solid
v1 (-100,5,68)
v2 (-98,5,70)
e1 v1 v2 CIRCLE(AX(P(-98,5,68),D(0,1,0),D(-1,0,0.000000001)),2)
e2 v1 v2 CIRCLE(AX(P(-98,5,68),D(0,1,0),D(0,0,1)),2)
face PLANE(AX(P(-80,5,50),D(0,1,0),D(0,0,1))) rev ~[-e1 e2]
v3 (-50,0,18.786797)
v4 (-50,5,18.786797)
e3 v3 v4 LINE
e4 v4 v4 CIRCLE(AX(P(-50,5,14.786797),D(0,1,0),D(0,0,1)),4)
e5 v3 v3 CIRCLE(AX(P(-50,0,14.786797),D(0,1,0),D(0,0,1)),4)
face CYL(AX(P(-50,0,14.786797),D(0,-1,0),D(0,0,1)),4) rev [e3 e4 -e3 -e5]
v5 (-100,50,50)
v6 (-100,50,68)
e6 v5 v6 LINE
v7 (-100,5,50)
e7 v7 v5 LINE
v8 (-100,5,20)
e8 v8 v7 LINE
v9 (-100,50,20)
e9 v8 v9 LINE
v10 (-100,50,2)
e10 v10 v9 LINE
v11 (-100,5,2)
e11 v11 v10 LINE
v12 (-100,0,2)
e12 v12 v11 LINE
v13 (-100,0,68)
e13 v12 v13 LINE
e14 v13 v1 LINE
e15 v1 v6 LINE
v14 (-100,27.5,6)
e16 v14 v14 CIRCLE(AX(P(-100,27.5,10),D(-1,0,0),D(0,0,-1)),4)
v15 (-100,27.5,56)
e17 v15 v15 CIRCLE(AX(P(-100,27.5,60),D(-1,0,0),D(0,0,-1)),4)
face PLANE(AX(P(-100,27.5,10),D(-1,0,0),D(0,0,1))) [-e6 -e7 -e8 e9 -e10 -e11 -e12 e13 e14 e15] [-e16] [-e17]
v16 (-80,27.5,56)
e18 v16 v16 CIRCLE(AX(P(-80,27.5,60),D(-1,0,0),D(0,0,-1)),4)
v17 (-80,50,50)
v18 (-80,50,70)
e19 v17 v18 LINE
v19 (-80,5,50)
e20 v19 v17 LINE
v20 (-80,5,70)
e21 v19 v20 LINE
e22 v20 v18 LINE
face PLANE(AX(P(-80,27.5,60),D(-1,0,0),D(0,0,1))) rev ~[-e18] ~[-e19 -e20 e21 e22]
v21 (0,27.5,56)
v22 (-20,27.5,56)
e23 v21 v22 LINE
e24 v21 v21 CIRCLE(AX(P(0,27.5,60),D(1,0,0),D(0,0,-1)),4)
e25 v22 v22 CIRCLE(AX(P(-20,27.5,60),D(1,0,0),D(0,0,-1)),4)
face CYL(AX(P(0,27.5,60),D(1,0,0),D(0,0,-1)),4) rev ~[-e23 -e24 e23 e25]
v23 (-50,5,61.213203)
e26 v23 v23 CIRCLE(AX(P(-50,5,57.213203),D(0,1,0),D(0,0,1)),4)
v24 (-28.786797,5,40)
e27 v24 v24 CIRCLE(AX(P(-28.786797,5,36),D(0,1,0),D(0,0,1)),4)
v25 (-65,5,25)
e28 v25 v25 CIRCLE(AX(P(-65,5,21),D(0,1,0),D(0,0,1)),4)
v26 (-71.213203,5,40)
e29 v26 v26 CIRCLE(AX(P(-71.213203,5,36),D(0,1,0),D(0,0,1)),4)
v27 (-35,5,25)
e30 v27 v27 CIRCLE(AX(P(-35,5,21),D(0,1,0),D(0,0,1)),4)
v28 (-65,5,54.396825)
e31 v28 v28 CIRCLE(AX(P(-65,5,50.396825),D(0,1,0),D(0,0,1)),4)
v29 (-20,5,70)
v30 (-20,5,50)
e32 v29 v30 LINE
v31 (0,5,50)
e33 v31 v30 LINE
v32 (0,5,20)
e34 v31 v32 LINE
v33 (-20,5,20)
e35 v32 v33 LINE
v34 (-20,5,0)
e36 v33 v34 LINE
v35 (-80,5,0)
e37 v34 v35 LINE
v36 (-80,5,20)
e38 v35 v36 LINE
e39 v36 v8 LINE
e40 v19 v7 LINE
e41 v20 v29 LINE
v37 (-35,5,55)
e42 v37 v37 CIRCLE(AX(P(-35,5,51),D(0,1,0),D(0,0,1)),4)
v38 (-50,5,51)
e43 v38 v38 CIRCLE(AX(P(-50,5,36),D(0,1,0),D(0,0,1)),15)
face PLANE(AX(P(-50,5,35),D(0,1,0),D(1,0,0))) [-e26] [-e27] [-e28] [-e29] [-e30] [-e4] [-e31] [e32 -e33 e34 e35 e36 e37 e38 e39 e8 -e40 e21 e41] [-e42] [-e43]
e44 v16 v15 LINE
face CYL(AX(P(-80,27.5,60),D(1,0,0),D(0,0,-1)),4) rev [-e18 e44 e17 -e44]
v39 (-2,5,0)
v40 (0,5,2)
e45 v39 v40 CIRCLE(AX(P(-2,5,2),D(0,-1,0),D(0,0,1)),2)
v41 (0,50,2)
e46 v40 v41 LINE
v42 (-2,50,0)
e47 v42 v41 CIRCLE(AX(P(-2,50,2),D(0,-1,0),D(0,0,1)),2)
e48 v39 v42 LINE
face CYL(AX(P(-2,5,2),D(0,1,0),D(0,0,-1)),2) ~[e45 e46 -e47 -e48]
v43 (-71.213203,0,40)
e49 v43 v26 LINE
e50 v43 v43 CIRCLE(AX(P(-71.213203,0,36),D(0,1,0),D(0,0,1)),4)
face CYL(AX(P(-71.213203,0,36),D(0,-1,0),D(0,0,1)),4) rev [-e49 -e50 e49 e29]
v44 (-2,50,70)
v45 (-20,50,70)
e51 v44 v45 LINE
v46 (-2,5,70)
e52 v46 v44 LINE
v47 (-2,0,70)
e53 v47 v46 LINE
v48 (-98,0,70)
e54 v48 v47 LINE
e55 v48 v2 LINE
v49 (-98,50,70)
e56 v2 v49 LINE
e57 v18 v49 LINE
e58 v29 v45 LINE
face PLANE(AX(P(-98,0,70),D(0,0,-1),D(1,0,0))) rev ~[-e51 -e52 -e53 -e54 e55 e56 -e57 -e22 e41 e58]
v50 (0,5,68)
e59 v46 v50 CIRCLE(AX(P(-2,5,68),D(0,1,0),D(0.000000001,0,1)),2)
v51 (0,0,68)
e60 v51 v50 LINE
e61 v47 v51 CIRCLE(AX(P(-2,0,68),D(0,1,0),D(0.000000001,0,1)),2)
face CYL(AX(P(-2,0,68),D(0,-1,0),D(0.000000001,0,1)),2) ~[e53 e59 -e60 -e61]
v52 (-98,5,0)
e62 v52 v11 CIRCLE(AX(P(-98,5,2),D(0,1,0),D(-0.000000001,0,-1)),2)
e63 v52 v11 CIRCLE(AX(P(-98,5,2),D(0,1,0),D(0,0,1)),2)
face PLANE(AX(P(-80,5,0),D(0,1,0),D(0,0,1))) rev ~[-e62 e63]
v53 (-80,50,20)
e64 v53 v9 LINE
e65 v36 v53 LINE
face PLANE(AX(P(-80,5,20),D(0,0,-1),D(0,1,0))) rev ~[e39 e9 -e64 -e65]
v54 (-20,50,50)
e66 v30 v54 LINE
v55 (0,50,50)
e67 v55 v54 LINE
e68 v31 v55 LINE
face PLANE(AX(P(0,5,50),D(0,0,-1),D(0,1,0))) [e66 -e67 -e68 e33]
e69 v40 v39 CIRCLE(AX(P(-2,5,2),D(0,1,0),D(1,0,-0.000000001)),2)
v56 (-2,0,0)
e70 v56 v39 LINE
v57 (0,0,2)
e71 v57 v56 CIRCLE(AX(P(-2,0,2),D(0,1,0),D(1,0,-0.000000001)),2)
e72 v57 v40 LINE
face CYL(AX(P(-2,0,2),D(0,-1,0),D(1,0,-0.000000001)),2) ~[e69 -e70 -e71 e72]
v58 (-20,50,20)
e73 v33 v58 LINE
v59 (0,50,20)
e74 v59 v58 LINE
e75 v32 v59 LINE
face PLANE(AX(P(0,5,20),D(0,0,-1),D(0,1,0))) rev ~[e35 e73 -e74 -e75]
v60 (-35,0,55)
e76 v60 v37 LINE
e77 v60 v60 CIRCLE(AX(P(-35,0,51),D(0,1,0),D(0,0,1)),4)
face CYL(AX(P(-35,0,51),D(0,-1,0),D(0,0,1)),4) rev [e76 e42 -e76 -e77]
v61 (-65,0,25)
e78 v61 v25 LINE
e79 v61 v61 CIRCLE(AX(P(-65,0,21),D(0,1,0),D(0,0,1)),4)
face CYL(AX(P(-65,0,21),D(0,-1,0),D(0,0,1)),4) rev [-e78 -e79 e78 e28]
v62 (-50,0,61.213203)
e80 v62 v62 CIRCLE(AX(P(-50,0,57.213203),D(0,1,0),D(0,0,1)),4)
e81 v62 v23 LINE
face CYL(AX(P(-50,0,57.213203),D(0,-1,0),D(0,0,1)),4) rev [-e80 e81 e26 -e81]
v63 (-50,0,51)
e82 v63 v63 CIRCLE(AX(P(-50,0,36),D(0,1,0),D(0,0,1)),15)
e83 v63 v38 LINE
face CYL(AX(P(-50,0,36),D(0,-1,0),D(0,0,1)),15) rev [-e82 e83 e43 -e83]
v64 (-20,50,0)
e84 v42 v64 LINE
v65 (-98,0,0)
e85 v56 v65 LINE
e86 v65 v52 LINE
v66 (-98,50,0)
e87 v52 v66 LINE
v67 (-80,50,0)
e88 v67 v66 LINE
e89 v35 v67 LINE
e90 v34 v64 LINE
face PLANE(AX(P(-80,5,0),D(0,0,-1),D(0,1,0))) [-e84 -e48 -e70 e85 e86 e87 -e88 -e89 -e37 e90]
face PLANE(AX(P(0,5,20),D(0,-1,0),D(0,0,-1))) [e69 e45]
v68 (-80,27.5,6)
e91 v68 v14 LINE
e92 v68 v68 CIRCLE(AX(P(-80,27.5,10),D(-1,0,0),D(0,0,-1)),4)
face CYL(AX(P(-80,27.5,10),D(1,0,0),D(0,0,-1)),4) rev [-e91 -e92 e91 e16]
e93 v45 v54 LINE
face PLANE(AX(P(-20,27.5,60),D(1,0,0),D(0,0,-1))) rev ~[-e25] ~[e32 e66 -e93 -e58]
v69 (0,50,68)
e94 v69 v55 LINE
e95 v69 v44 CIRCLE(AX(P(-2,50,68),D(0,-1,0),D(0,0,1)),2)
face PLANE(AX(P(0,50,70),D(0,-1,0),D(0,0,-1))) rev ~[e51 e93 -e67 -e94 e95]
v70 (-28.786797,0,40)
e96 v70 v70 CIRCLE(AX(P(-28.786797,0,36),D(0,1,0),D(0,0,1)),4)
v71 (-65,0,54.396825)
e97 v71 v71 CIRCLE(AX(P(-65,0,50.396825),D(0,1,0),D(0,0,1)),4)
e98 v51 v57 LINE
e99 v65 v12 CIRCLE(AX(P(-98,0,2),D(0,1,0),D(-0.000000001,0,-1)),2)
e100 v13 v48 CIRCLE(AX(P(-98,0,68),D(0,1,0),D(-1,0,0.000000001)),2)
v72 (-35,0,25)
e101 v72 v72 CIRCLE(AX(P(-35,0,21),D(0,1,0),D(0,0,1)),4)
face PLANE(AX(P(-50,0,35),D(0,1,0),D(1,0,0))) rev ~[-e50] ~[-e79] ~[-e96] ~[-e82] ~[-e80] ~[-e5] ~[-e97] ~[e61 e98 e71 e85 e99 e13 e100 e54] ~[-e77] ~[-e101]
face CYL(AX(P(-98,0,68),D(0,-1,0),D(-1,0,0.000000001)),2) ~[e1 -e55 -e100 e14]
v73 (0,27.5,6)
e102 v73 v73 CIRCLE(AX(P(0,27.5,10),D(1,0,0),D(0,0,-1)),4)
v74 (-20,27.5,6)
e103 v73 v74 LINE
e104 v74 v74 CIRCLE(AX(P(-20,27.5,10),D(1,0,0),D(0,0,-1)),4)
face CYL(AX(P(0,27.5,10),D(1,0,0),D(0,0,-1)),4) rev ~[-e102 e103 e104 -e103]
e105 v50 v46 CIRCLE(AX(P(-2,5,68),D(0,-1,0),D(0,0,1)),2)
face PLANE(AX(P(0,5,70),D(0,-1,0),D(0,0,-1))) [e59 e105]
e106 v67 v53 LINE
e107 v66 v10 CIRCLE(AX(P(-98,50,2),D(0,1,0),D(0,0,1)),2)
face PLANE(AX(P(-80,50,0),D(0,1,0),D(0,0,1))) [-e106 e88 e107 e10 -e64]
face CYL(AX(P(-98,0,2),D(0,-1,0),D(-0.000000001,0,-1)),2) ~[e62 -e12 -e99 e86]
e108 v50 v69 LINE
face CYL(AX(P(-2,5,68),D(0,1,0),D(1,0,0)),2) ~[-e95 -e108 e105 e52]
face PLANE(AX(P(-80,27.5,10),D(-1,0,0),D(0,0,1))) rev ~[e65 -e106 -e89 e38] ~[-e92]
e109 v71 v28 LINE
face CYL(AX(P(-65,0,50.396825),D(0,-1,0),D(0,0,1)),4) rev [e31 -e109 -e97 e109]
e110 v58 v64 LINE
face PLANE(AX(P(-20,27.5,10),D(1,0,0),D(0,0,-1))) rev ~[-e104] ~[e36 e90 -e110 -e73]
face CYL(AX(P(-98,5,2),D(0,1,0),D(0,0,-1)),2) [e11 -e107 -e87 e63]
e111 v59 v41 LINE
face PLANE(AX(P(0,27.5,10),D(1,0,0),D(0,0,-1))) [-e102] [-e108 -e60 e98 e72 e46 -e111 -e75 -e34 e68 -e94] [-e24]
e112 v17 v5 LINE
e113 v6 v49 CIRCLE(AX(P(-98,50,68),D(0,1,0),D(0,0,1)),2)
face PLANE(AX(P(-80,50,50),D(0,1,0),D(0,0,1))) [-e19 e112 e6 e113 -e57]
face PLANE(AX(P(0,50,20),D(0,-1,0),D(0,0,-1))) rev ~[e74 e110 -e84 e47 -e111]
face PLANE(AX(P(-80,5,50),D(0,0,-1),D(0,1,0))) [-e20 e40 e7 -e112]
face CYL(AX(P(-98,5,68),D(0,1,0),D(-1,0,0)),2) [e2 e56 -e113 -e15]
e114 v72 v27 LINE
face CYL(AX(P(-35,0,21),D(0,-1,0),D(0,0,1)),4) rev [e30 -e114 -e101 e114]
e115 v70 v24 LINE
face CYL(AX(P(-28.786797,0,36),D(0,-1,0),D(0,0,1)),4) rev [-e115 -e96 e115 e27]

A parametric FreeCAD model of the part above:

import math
import FreeCAD as App
import Part
import Sketcher

V = App.Vector


def edges_at(feature, points):
    """Names of the edges that pass closest to the given points."""
    edges = feature.Shape.Edges
    near = lambda p: min(range(len(edges)), key=lambda i: edges[i].distToShape(Part.Vertex(*p))[0])
    return sorted({f"Edge{near(p) + 1}" for p in points})


def add_polygon(sketch, points):
    """Adds a closed chain of lines whose ends are joined by coincident constraints."""
    first, n = sketch.GeometryCount, len(points)
    for a, b in zip(points, points[1:] + points[:1]):
        sketch.addGeometry(Part.LineSegment(App.Vector(*a, 0), App.Vector(*b, 0)), False)
    for i in range(n):
        sketch.addConstraint(Sketcher.Constraint("Coincident", first + i, 2, first + (i + 1) % n, 1))

doc = App.newDocument("Part")
body = doc.addObject("PartDesign::Body", "Body")

# Sketch on XZ plane
sketch1 = body.newObject("Sketcher::SketchObject", "Sketch")
sketch1.AttachmentSupport = (doc.getObject("XZ_Plane"), [""])
sketch1.MapMode = "FlatFace"
sketch1.addGeometry([
    Part.LineSegment(V(-2, 0, 0), V(-98, 0, 0)),  # 0
    Part.ArcOfCircle(Part.Circle(V(-98, 2, 0), V(0, 0, 1), 2), math.radians(-180), math.radians(-90)),  # 1
    Part.LineSegment(V(-100, 2, 0), V(-100, 68, 0)),  # 2
    Part.ArcOfCircle(Part.Circle(V(-98, 68, 0), V(0, 0, 1), 2), math.radians(90), math.radians(180)),  # 3
    Part.LineSegment(V(-98, 70, 0), V(-2, 70, 0)),  # 4
    Part.ArcOfCircle(Part.Circle(V(-2, 68, 0), V(0, 0, 1), 2), math.radians(0), math.radians(90)),  # 5
    Part.LineSegment(V(0, 68, 0), V(0, 2, 0)),  # 6
    Part.ArcOfCircle(Part.Circle(V(-2, 2, 0), V(0, 0, 1), 2), math.radians(-90), math.radians(0)),  # 7
    Part.Circle(V(-65, 50.4, 0), V(0, 0, 1), 4),  # 8
    Part.Circle(V(-50, 57.2, 0), V(0, 0, 1), 4),  # 9
    Part.Circle(V(-35, 51, 0), V(0, 0, 1), 4),  # 10
    Part.Circle(V(-71.2, 36, 0), V(0, 0, 1), 4),  # 11
    Part.Circle(V(-65, 21, 0), V(0, 0, 1), 4),  # 12
    Part.Circle(V(-50, 36, 0), V(0, 0, 1), 15),  # 13
    Part.Circle(V(-28.8, 36, 0), V(0, 0, 1), 4),  # 14
    Part.Circle(V(-50, 14.8, 0), V(0, 0, 1), 4),  # 15
    Part.Circle(V(-35, 21, 0), V(0, 0, 1), 4),  # 16
], False)
sketch1.addConstraint([
    Sketcher.Constraint("Tangent", 0, 2, 1, 2),
    Sketcher.Constraint("Tangent", 1, 1, 2, 1),
    Sketcher.Constraint("Tangent", 2, 2, 3, 2),
    Sketcher.Constraint("Tangent", 3, 1, 4, 1),
    Sketcher.Constraint("Tangent", 4, 2, 5, 2),
    Sketcher.Constraint("Tangent", 5, 1, 6, 1),
    Sketcher.Constraint("Tangent", 6, 2, 7, 2),
    Sketcher.Constraint("Tangent", 7, 1, 0, 1),
    Sketcher.Constraint("Horizontal", 0),
    Sketcher.Constraint("Vertical", 2),
    Sketcher.Constraint("Horizontal", 4),
    Sketcher.Constraint("Vertical", 6),
    Sketcher.Constraint("Equal", 1, 3),
    Sketcher.Constraint("Equal", 3, 5),
    Sketcher.Constraint("Equal", 5, 7),
    Sketcher.Constraint("Equal", 8, 9),
    Sketcher.Constraint("Equal", 9, 10),
    Sketcher.Constraint("Equal", 10, 11),
    Sketcher.Constraint("Equal", 11, 12),
    Sketcher.Constraint("Equal", 12, 14),
    Sketcher.Constraint("Equal", 14, 15),
    Sketcher.Constraint("Equal", 15, 16),
    Sketcher.Constraint("PointOnObject", 0, 2, -1),
    Sketcher.Constraint("PointOnObject", 5, 1, -2),
    Sketcher.Constraint("Horizontal", 11, 3, 13, 3),
    Sketcher.Constraint("Horizontal", 13, 3, 14, 3),
    Sketcher.Constraint("Horizontal", 12, 3, 16, 3),
    Sketcher.Constraint("Vertical", 8, 3, 12, 3),
    Sketcher.Constraint("Vertical", 9, 3, 13, 3),
    Sketcher.Constraint("Vertical", 13, 3, 15, 3),
    Sketcher.Constraint("Vertical", 10, 3, 16, 3),
    Sketcher.Constraint("Diameter", 8, 8.0),
    Sketcher.Constraint("Diameter", 13, 30.0),
    Sketcher.Constraint("Radius", 1, 2.0),
    Sketcher.Constraint("DistanceX", 0, 2, 0, 1, 96.0),
    Sketcher.Constraint("DistanceY", 2, 1, 2, 2, 66.0),
    Sketcher.Constraint("DistanceX", 8, 3, -1, 1, 65.0),
    Sketcher.Constraint("DistanceX", 9, 3, -1, 1, 50.0),
    Sketcher.Constraint("DistanceX", 10, 3, -1, 1, 35.0),
    Sketcher.Constraint("DistanceY", -1, 1, 10, 3, 51.0),
    Sketcher.Constraint("DistanceY", -1, 1, 11, 3, 36.0),
    Sketcher.Constraint("DistanceY", -1, 1, 12, 3, 21.0),
    Sketcher.Constraint("DistanceY", 8, 3, 9, 3, 6.816378),
    Sketcher.Constraint("DistanceY", 15, 3, 8, 3, 35.610029),
    Sketcher.Constraint("DistanceY", -1, 1, 8, 3, 50.396825),
    Sketcher.Constraint("DistanceX", 11, 3, -1, 1, 71.213203),
    Sketcher.Constraint("DistanceX", 14, 3, -1, 1, 28.786797),
])
pad1 = body.newObject("PartDesign::Pad", "Pad")
pad1.Profile = sketch1
pad1.Length = 5
pad1.Reversed = True

# Sketch on YZ plane
sketch2 = body.newObject("Sketcher::SketchObject", "Sketch001")
sketch2.AttachmentSupport = (doc.getObject("YZ_Plane"), [""])
sketch2.MapMode = "FlatFace"
add_polygon(sketch2, [(50, 20), (5, 20), (5, 0), (50, 0)])  # lines 0-3
sketch2.addGeometry(Part.Circle(V(27.5, 10, 0), V(0, 0, 1), 4), False)  # 4
add_polygon(sketch2, [(50, 70), (5, 70), (5, 50), (50, 50)])  # lines 5-8
sketch2.addGeometry(Part.Circle(V(27.5, 60, 0), V(0, 0, 1), 4), False)  # 9
sketch2.addConstraint([
    Sketcher.Constraint("Horizontal", 0),
    Sketcher.Constraint("Vertical", 1),
    Sketcher.Constraint("Horizontal", 2),
    Sketcher.Constraint("Vertical", 3),
    Sketcher.Constraint("Horizontal", 5),
    Sketcher.Constraint("Vertical", 6),
    Sketcher.Constraint("Horizontal", 7),
    Sketcher.Constraint("Vertical", 8),
    Sketcher.Constraint("Equal", 4, 9),
    Sketcher.Constraint("PointOnObject", 1, 2, -1),
    Sketcher.Constraint("Vertical", 4, 3, 9, 3),
    Sketcher.Constraint("Vertical", 1, 2, 5, 2),
    Sketcher.Constraint("Vertical", 3, 2, 7, 2),
    Sketcher.Constraint("Equal", 3, 6),
    Sketcher.Constraint("Diameter", 4, 8.0),
    Sketcher.Constraint("DistanceX", 0, 2, 0, 1, 45.0),
    Sketcher.Constraint("DistanceY", 1, 2, 1, 1, 20.0),
    Sketcher.Constraint("DistanceY", -1, 1, 4, 3, 10.0),
    Sketcher.Constraint("DistanceY", -1, 1, 9, 3, 60.0),
    Sketcher.Constraint("DistanceX", -1, 1, 0, 2, 5.0),
    Sketcher.Constraint("DistanceY", -1, 1, 5, 2, 70.0),
    Sketcher.Constraint("DistanceX", -1, 1, 4, 3, 27.5),
])
pad2 = body.newObject("PartDesign::Pad", "Pad001")
pad2.Profile = sketch2
pad2.Length = 20
pad2.Reversed = True

# Sketch on YZ plane
sketch3 = body.newObject("Sketcher::SketchObject", "Sketch002")
sketch3.AttachmentSupport = (doc.getObject("YZ_Plane"), [""])
sketch3.MapMode = "FlatFace"
sketch3.AttachmentOffset = App.Placement(V(0, 0, -80), App.Rotation())
add_polygon(sketch3, [(50, 0), (5, 0), (5, 20), (50, 20)])  # lines 0-3
sketch3.addGeometry(Part.Circle(V(27.5, 10, 0), V(0, 0, 1), 4), False)  # 4
add_polygon(sketch3, [(50, 50), (5, 50), (5, 70), (50, 70)])  # lines 5-8
sketch3.addGeometry(Part.Circle(V(27.5, 60, 0), V(0, 0, 1), 4), False)  # 9
sketch3.addConstraint([
    Sketcher.Constraint("Horizontal", 0),
    Sketcher.Constraint("Vertical", 1),
    Sketcher.Constraint("Horizontal", 2),
    Sketcher.Constraint("Vertical", 3),
    Sketcher.Constraint("Horizontal", 5),
    Sketcher.Constraint("Vertical", 6),
    Sketcher.Constraint("Horizontal", 7),
    Sketcher.Constraint("Vertical", 8),
    Sketcher.Constraint("Equal", 4, 9),
    Sketcher.Constraint("PointOnObject", 0, 2, -1),
    Sketcher.Constraint("Vertical", 4, 3, 9, 3),
    Sketcher.Constraint("Vertical", 1, 2, 5, 2),
    Sketcher.Constraint("Vertical", 3, 2, 7, 2),
    Sketcher.Constraint("Equal", 3, 6),
    Sketcher.Constraint("Diameter", 4, 8.0),
    Sketcher.Constraint("DistanceX", 0, 2, 0, 1, 45.0),
    Sketcher.Constraint("DistanceY", 1, 1, 1, 2, 20.0),
    Sketcher.Constraint("DistanceY", -1, 1, 4, 3, 10.0),
    Sketcher.Constraint("DistanceY", -1, 1, 9, 3, 60.0),
    Sketcher.Constraint("DistanceX", -1, 1, 0, 2, 5.0),
    Sketcher.Constraint("DistanceY", -1, 1, 5, 2, 50.0),
    Sketcher.Constraint("DistanceX", -1, 1, 4, 3, 27.5),
])
pad3 = body.newObject("PartDesign::Pad", "Pad002")
pad3.Profile = sketch3
pad3.Length = 20
pad3.Reversed = True
doc.recompute()

fillet = body.newObject("PartDesign::Fillet", "Fillet")
fillet.Base = (pad3, edges_at(pad3, [(-100, 27.5, 70), (-100, 27.5, 0)]))
fillet.Radius = 2
doc.recompute()

fillet2 = body.newObject("PartDesign::Fillet", "Fillet001")
fillet2.Base = (fillet, edges_at(fillet, [(0, 27.5, 0)]))
fillet2.Radius = 2
doc.recompute()

fillet3 = body.newObject("PartDesign::Fillet", "Fillet002")
fillet3.Base = (fillet2, edges_at(fillet2, [(0, 27.5, 70)]))
fillet3.Radius = 2

doc.recompute()
